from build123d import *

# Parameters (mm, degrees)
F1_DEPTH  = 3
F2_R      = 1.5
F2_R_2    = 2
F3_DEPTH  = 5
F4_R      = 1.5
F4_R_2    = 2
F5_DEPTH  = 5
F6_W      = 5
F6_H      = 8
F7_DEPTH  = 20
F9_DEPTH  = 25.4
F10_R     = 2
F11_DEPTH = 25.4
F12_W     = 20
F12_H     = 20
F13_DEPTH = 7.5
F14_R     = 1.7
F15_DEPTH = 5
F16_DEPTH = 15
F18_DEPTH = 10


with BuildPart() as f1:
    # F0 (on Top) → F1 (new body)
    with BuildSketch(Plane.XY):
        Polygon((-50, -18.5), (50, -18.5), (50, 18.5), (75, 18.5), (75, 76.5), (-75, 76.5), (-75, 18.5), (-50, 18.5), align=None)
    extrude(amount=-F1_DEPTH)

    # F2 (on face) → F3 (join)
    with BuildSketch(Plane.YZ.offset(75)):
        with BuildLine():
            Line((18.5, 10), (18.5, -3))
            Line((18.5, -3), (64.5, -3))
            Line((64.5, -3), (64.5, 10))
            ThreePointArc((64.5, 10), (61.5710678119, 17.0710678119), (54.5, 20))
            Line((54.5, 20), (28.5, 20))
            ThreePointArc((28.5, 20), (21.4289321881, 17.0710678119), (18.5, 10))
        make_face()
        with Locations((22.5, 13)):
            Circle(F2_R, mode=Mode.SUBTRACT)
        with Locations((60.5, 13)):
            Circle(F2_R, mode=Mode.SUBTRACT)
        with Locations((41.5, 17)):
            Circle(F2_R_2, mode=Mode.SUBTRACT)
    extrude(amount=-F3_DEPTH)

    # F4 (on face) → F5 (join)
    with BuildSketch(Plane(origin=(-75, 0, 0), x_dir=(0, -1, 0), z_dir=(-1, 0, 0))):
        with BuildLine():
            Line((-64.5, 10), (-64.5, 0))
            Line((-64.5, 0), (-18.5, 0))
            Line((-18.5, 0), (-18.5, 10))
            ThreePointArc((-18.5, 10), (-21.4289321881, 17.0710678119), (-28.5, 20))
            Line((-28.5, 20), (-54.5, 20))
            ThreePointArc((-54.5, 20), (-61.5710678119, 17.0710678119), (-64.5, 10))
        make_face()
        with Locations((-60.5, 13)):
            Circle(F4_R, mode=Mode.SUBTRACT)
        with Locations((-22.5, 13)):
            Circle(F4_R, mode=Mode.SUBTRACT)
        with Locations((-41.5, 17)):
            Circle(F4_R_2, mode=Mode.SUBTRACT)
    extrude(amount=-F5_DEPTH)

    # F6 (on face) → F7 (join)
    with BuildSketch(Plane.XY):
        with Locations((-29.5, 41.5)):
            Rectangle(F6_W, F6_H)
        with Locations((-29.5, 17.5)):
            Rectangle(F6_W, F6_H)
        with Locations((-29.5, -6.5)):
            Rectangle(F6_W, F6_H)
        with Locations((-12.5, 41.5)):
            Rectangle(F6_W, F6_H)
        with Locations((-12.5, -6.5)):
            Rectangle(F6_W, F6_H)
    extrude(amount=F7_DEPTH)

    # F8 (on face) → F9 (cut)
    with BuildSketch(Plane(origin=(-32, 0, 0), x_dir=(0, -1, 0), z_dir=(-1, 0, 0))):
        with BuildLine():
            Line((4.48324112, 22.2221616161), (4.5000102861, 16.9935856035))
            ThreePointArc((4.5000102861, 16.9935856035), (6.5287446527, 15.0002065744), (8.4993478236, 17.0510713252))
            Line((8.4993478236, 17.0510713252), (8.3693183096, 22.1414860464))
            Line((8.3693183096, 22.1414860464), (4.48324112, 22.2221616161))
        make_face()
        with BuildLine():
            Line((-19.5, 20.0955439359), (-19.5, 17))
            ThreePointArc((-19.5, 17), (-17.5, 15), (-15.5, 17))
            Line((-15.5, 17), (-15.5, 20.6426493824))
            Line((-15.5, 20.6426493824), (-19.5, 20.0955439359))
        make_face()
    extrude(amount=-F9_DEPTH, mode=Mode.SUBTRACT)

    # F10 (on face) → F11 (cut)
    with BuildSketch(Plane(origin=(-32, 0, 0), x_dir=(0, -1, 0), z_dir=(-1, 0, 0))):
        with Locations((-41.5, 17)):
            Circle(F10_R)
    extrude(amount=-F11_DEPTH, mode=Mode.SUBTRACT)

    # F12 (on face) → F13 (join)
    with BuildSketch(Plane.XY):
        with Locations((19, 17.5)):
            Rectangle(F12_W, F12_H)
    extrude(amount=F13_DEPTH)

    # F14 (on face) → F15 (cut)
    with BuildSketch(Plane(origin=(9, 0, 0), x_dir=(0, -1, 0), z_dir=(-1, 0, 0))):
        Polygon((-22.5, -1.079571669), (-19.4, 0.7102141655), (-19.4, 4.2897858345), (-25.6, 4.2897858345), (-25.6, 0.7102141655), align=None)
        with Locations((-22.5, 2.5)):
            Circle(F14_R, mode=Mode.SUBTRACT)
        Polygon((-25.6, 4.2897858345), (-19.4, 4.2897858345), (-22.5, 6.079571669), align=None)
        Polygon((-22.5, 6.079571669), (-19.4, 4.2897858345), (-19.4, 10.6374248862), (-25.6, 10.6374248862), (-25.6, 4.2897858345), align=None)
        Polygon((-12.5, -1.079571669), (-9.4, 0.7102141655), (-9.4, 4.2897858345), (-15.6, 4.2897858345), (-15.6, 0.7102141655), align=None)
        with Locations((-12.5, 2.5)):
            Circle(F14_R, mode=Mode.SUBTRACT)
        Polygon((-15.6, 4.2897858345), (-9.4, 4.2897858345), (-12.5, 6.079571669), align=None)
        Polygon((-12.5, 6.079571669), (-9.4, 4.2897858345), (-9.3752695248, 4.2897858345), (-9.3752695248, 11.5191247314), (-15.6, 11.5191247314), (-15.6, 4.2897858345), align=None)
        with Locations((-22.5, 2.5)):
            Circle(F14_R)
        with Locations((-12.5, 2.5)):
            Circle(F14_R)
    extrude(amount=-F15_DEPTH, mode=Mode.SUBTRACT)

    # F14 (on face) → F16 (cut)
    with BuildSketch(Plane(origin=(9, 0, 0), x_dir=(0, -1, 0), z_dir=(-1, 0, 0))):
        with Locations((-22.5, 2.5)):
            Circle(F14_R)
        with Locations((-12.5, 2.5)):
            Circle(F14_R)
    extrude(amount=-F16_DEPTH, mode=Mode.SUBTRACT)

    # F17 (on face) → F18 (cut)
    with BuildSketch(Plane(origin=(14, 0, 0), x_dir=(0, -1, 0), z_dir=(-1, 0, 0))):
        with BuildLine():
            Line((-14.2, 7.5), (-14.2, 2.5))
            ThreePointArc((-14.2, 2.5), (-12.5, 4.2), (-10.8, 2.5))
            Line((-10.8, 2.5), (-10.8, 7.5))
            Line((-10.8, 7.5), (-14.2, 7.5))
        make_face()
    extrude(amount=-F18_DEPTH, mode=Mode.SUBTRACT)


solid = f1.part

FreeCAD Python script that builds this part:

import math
import FreeCAD as App
import Part
import Sketcher
Q = App.Units.Quantity


def add_polygon(sketch, points):
    """Adds a closed chain of lines whose ends are joined by coincident constraints."""
    first, n = sketch.GeometryCount, len(points)
    for a, b in zip(points, points[1:] + points[:1]):
        sketch.addGeometry(Part.LineSegment(App.Vector(*a, 0), App.Vector(*b, 0)), False)
    for i in range(n):
        sketch.addConstraint(Sketcher.Constraint("Coincident", first + i, 2, first + (i + 1) % n, 1))

doc = App.newDocument("Part")
body = doc.addObject("PartDesign::Body", "Body")

# Sketch on XY plane
sketch1 = body.newObject("Sketcher::SketchObject", "Sketch")
sketch1.AttachmentSupport = (doc.getObject("XY_Plane"), [""])
sketch1.MapMode = "FlatFace"
add_polygon(sketch1, [(-50, -18), (50, -18), (50, 18), (75, 18), (75, 76), (-75, 76), (-75, 18), (-50, 18)])  # lines 0-7
sketch1.addConstraint(Sketcher.Constraint("Horizontal", 0))
sketch1.addConstraint(Sketcher.Constraint("Vertical", 1))
sketch1.addConstraint(Sketcher.Constraint("Horizontal", 2))
sketch1.addConstraint(Sketcher.Constraint("Vertical", 3))
sketch1.addConstraint(Sketcher.Constraint("Horizontal", 4))
sketch1.addConstraint(Sketcher.Constraint("Vertical", 5))
sketch1.addConstraint(Sketcher.Constraint("Horizontal", 6))
sketch1.addConstraint(Sketcher.Constraint("Vertical", 7))
sketch1.addConstraint(Sketcher.Constraint("Symmetric", 0, 2, 6, 2, -1, 1))
sketch1.addConstraint(Sketcher.Constraint("Symmetric", 2, 2, 5, 2, -2))
sketch1.addConstraint(Sketcher.Constraint("DistanceX", 0, 1, 0, 2, 100.0))
sketch1.addConstraint(Sketcher.Constraint("DistanceX", 2, 1, 2, 2, 25.0))
sketch1.addConstraint(Sketcher.Constraint("DistanceY", 1, 1, 1, 2, 37.0))
sketch1.addConstraint(Sketcher.Constraint("DistanceY", 3, 1, 3, 2, 58.0))
pad1 = body.newObject("PartDesign::Pad", "Pad")
pad1.Profile = sketch1
pad1.Length = 3
pad1.Reversed = True

# Sketch on YZ plane
sketch2 = body.newObject("Sketcher::SketchObject", "Sketch001")
sketch2.AttachmentSupport = (doc.getObject("YZ_Plane"), [""])
sketch2.MapMode = "FlatFace"
sketch2.AttachmentOffset = App.Placement(App.Vector(0, 0, 75), App.Rotation())
sketch2.addGeometry(Part.LineSegment(App.Vector(18.5, 10, 0), App.Vector(18.5, -3, 0)), False)
sketch2.addGeometry(Part.LineSegment(App.Vector(18.5, -3, 0), App.Vector(64.5, -3, 0)), False)
sketch2.addGeometry(Part.LineSegment(App.Vector(64.5, -3, 0), App.Vector(64.5, 10, 0)), False)
sketch2.addGeometry(Part.ArcOfCircle(Part.Circle(App.Vector(54.5, 10, 0), App.Vector(0, 0, 1), 10), math.radians(0), math.radians(90)), False)
sketch2.addGeometry(Part.LineSegment(App.Vector(54.5, 20, 0), App.Vector(28.5, 20, 0)), False)
sketch2.addGeometry(Part.ArcOfCircle(Part.Circle(App.Vector(28.5, 10, 0), App.Vector(0, 0, 1), 10), math.radians(90), math.radians(180)), False)
sketch2.addGeometry(Part.Circle(App.Vector(22.5, 13, 0), App.Vector(0, 0, 1), 1.5), False)
sketch2.addGeometry(Part.Circle(App.Vector(60.5, 13, 0), App.Vector(0, 0, 1), 1.5), False)
sketch2.addGeometry(Part.Circle(App.Vector(41.5, 17, 0), App.Vector(0, 0, 1), 2), False)
sketch2.addConstraint(Sketcher.Constraint("Coincident", 0, 2, 1, 1))
sketch2.addConstraint(Sketcher.Constraint("Coincident", 1, 2, 2, 1))
sketch2.addConstraint(Sketcher.Constraint("Tangent", 2, 2, 3, 1))
sketch2.addConstraint(Sketcher.Constraint("Tangent", 3, 2, 4, 1))
sketch2.addConstraint(Sketcher.Constraint("Tangent", 4, 2, 5, 1))
sketch2.addConstraint(Sketcher.Constraint("Tangent", 5, 2, 0, 1))
sketch2.addConstraint(Sketcher.Constraint("Vertical", 0))
sketch2.addConstraint(Sketcher.Constraint("Horizontal", 1))
sketch2.addConstraint(Sketcher.Constraint("Vertical", 2))
sketch2.addConstraint(Sketcher.Constraint("Horizontal", 4))
sketch2.addConstraint(Sketcher.Constraint("Equal", 3, 5))
sketch2.addConstraint(Sketcher.Constraint("Equal", 6, 7))
sketch2.addConstraint(Sketcher.Constraint("Horizontal", 6, 3, 7, 3))
sketch2.addConstraint(Sketcher.Constraint("Diameter", 6, 3.0))
sketch2.addConstraint(Sketcher.Constraint("Diameter", 8, 4.0))
sketch2.addConstraint(Sketcher.Constraint("Radius", 3, 10.0))
sketch2.addConstraint(Sketcher.Constraint("DistanceX", 1, 1, 1, 2, 46.0))
sketch2.addConstraint(Sketcher.Constraint("DistanceY", 0, 2, 0, 1, 13.0))
sketch2.addConstraint(Sketcher.Constraint("DistanceY", -1, 1, 3, 3, 10.0))
sketch2.addConstraint(Sketcher.Constraint("DistanceY", -1, 1, 6, 3, 13.0))
sketch2.addConstraint(Sketcher.Constraint("DistanceY", -1, 1, 8, 3, 17.0))
sketch2.addConstraint(Sketcher.Constraint("DistanceX", 6, 3, 5, 3, 6.0))
sketch2.addConstraint(Sketcher.Constraint("DistanceX", 3, 3, 7, 3, 6.0))
sketch2.addConstraint(Sketcher.Constraint("DistanceX", 8, 3, 3, 3, 13.0))
sketch2.addConstraint(Sketcher.Constraint("DistanceX", -1, 1, 3, 3, 54.5))
pad2 = body.newObject("PartDesign::Pad", "Pad001")
pad2.Profile = sketch2
pad2.Length = 5
pad2.Reversed = True

# Sketch on YZ plane
sketch3 = body.newObject("Sketcher::SketchObject", "Sketch002")
sketch3.AttachmentSupport = (doc.getObject("YZ_Plane"), [""])
sketch3.MapMode = "FlatFace"
sketch3.AttachmentOffset = App.Placement(App.Vector(0, 0, -75), App.Rotation())
sketch3.addGeometry(Part.LineSegment(App.Vector(64.5, 10, 0), App.Vector(64.5, 0, 0)), False)
sketch3.addGeometry(Part.LineSegment(App.Vector(64.5, 0, 0), App.Vector(18.5, 0, 0)), False)
sketch3.addGeometry(Part.LineSegment(App.Vector(18.5, 0, 0), App.Vector(18.5, 10, 0)), False)
sketch3.addGeometry(Part.ArcOfCircle(Part.Circle(App.Vector(28.5, 10, 0), App.Vector(0, 0, 1), 10), math.radians(90), math.radians(180)), False)
sketch3.addGeometry(Part.LineSegment(App.Vector(28.5, 20, 0), App.Vector(54.5, 20, 0)), False)
sketch3.addGeometry(Part.ArcOfCircle(Part.Circle(App.Vector(54.5, 10, 0), App.Vector(0, 0, 1), 10), math.radians(0), math.radians(90)), False)
sketch3.addGeometry(Part.Circle(App.Vector(60.5, 13, 0), App.Vector(0, 0, 1), 1.5), False)
sketch3.addGeometry(Part.Circle(App.Vector(22.5, 13, 0), App.Vector(0, 0, 1), 1.5), False)
sketch3.addGeometry(Part.Circle(App.Vector(41.5, 17, 0), App.Vector(0, 0, 1), 2), False)
sketch3.addConstraint(Sketcher.Constraint("Coincident", 0, 2, 1, 1))
sketch3.addConstraint(Sketcher.Constraint("Coincident", 1, 2, 2, 1))
sketch3.addConstraint(Sketcher.Constraint("Tangent", 2, 2, 3, 2))
sketch3.addConstraint(Sketcher.Constraint("Tangent", 3, 1, 4, 1))
sketch3.addConstraint(Sketcher.Constraint("Tangent", 4, 2, 5, 2))
sketch3.addConstraint(Sketcher.Constraint("Tangent", 5, 1, 0, 1))
sketch3.addConstraint(Sketcher.Constraint("Vertical", 0))
sketch3.addConstraint(Sketcher.Constraint("Horizontal", 1))
sketch3.addConstraint(Sketcher.Constraint("Vertical", 2))
sketch3.addConstraint(Sketcher.Constraint("Horizontal", 4))
sketch3.addConstraint(Sketcher.Constraint("Equal", 3, 5))
sketch3.addConstraint(Sketcher.Constraint("Equal", 6, 7))
sketch3.addConstraint(Sketcher.Constraint("PointOnObject", 0, 2, -1))
sketch3.addConstraint(Sketcher.Constraint("Horizontal", 6, 3, 7, 3))
sketch3.addConstraint(Sketcher.Constraint("Diameter", 6, 3.0))
sketch3.addConstraint(Sketcher.Constraint("Diameter", 8, 4.0))
sketch3.addConstraint(Sketcher.Constraint("Radius", 3, 10.0))
sketch3.addConstraint(Sketcher.Constraint("DistanceX", 1, 2, 1, 1, 46.0))
sketch3.addConstraint(Sketcher.Constraint("DistanceY", 0, 2, 0, 1, 10.0))
sketch3.addConstraint(Sketcher.Constraint("DistanceY", -1, 1, 6, 3, 13.0))
sketch3.addConstraint(Sketcher.Constraint("DistanceY", -1, 1, 8, 3, 17.0))
sketch3.addConstraint(Sketcher.Constraint("DistanceX", 5, 3, 6, 3, 6.0))
sketch3.addConstraint(Sketcher.Constraint("DistanceX", 7, 3, 3, 3, 6.0))
sketch3.addConstraint(Sketcher.Constraint("DistanceX", 3, 3, 8, 3, 13.0))
sketch3.addConstraint(Sketcher.Constraint("DistanceX", -1, 1, 3, 3, 28.5))
pad3 = body.newObject("PartDesign::Pad", "Pad002")
pad3.Profile = sketch3
pad3.Length = 5

# Sketch on XY plane
sketch4 = body.newObject("Sketcher::SketchObject", "Sketch003")
sketch4.AttachmentSupport = (doc.getObject("XY_Plane"), [""])
sketch4.MapMode = "FlatFace"
add_polygon(sketch4, [(-32, 46), (-32, 38), (-27, 38), (-27, 46)])  # lines 0-3
add_polygon(sketch4, [(-32, 22), (-32, 14), (-27, 14), (-27, 22)])  # lines 4-7
add_polygon(sketch4, [(-32, -2), (-32, -10), (-27, -10), (-27, -2)])  # lines 8-11
add_polygon(sketch4, [(-15, 46), (-15, 38), (-10, 38), (-10, 46)])  # lines 12-15
add_polygon(sketch4, [(-15, -2), (-15, -10), (-10, -10), (-10, -2)])  # lines 16-19
sketch4.addConstraint(Sketcher.Constraint("Vertical", 0))
sketch4.addConstraint(Sketcher.Constraint("Horizontal", 1))
sketch4.addConstraint(Sketcher.Constraint("Vertical", 2))
sketch4.addConstraint(Sketcher.Constraint("Horizontal", 3))
sketch4.addConstraint(Sketcher.Constraint("Vertical", 4))
sketch4.addConstraint(Sketcher.Constraint("Horizontal", 5))
sketch4.addConstraint(Sketcher.Constraint("Vertical", 6))
sketch4.addConstraint(Sketcher.Constraint("Horizontal", 7))
sketch4.addConstraint(Sketcher.Constraint("Vertical", 8))
sketch4.addConstraint(Sketcher.Constraint("Horizontal", 9))
sketch4.addConstraint(Sketcher.Constraint("Vertical", 10))
sketch4.addConstraint(Sketcher.Constraint("Horizontal", 11))
sketch4.addConstraint(Sketcher.Constraint("Vertical", 12))
sketch4.addConstraint(Sketcher.Constraint("Horizontal", 13))
sketch4.addConstraint(Sketcher.Constraint("Vertical", 14))
sketch4.addConstraint(Sketcher.Constraint("Horizontal", 15))
sketch4.addConstraint(Sketcher.Constraint("Vertical", 16))
sketch4.addConstraint(Sketcher.Constraint("Horizontal", 17))
sketch4.addConstraint(Sketcher.Constraint("Vertical", 18))
sketch4.addConstraint(Sketcher.Constraint("Horizontal", 19))
sketch4.addConstraint(Sketcher.Constraint("Horizontal", 1, 2, 12, 2))
sketch4.addConstraint(Sketcher.Constraint("Horizontal", 3, 2, 14, 2))
sketch4.addConstraint(Sketcher.Constraint("Horizontal", 9, 2, 16, 2))
sketch4.addConstraint(Sketcher.Constraint("Horizontal", 11, 2, 18, 2))
sketch4.addConstraint(Sketcher.Constraint("Vertical", 3, 2, 4, 2))
sketch4.addConstraint(Sketcher.Constraint("Vertical", 2, 2, 5, 2))
sketch4.addConstraint(Sketcher.Constraint("Vertical", 7, 2, 8, 2))
sketch4.addConstraint(Sketcher.Constraint("Vertical", 6, 2, 9, 2))
sketch4.addConstraint(Sketcher.Constraint("Vertical", 15, 2, 16, 2))
sketch4.addConstraint(Sketcher.Constraint("Vertical", 14, 2, 17, 2))
sketch4.addConstraint(Sketcher.Constraint("Equal", 11, 13))
sketch4.addConstraint(Sketcher.Constraint("Equal", 2, 4))
sketch4.addConstraint(Sketcher.Constraint("Equal", 6, 8))
sketch4.addConstraint(Sketcher.Constraint("DistanceX", 1, 1, 1, 2, 5.0))
sketch4.addConstraint(Sketcher.Constraint("DistanceY", 0, 2, 0, 1, 8.0))
sketch4.addConstraint(Sketcher.Constraint("DistanceX", 0, 2, -1, 1, 32.0))
sketch4.addConstraint(Sketcher.Constraint("DistanceX", 12, 2, -1, 1, 15.0))
sketch4.addConstraint(Sketcher.Constraint("DistanceY", 4, 2, 0, 2, 24.0))
sketch4.addConstraint(Sketcher.Constraint("DistanceY", 8, 2, 4, 2, 24.0))
sketch4.addConstraint(Sketcher.Constraint("DistanceY", -1, 1, 0, 2, 37.5))
pad4 = body.newObject("PartDesign::Pad", "Pad003")
pad4.Profile = sketch4
pad4.Length = 20

# Sketch on YZ plane
sketch5 = body.newObject("Sketcher::SketchObject", "Sketch004")
sketch5.AttachmentSupport = (doc.getObject("YZ_Plane"), [""])
sketch5.MapMode = "FlatFace"
sketch5.AttachmentOffset = App.Placement(App.Vector(0, 0, -32), App.Rotation())
sketch5.addGeometry(Part.LineSegment(App.Vector(-4.483241, 22.222162, 0), App.Vector(-4.50001, 16.993586, 0)), False)
sketch5.addGeometry(Part.ArcOfCircle(Part.Circle(App.Vector(-6.5, 17, 0), App.Vector(0, 0, 1), 2), math.radians(178.536755), math.radians(359.816241)), False)
sketch5.addGeometry(Part.LineSegment(App.Vector(-8.499348, 17.051071, 0), App.Vector(-8.369318, 22.141486, 0)), False)
sketch5.addGeometry(Part.LineSegment(App.Vector(-8.369318, 22.141486, 0), App.Vector(-4.483241, 22.222162, 0)), False)
sketch5.addGeometry(Part.LineSegment(App.Vector(19.5, 20.095544, 0), App.Vector(19.5, 17, 0)), False)
sketch5.addGeometry(Part.ArcOfCircle(Part.Circle(App.Vector(17.5, 17, 0), App.Vector(0, 0, 1), 2), math.radians(180), math.radians(360)), False)
sketch5.addGeometry(Part.LineSegment(App.Vector(15.5, 17, 0), App.Vector(15.5, 20.642649, 0)), False)
sketch5.addGeometry(Part.LineSegment(App.Vector(15.5, 20.642649, 0), App.Vector(19.5, 20.095544, 0)), False)
sketch5.addConstraint(Sketcher.Constraint("Coincident", 0, 2, 1, 2))
sketch5.addConstraint(Sketcher.Constraint("Coincident", 1, 1, 2, 1))
sketch5.addConstraint(Sketcher.Constraint("Coincident", 2, 2, 3, 1))
sketch5.addConstraint(Sketcher.Constraint("Coincident", 3, 2, 0, 1))
sketch5.addConstraint(Sketcher.Constraint("Coincident", 4, 2, 5, 2))
sketch5.addConstraint(Sketcher.Constraint("Coincident", 5, 1, 6, 1))
sketch5.addConstraint(Sketcher.Constraint("Coincident", 6, 2, 7, 1))
sketch5.addConstraint(Sketcher.Constraint("Coincident", 7, 2, 4, 1))
sketch5.addConstraint(Sketcher.Constraint("Vertical", 4))
sketch5.addConstraint(Sketcher.Constraint("Vertical", 6))
sketch5.addConstraint(Sketcher.Constraint("Radius", 1, 2.0))
sketch5.addConstraint(Sketcher.Constraint("Radius", 5, 2.0))
sketch5.addConstraint(Sketcher.Constraint("DistanceY", -1, 1, 1, 3, 17.0))
sketch5.addConstraint(Sketcher.Constraint("DistanceY", -1, 1, 5, 3, 17.0))
sketch5.addConstraint(Sketcher.Constraint("DistanceY", -1, 1, 4, 2, 17.0))
sketch5.addConstraint(Sketcher.Constraint("DistanceY", -1, 1, 5, 1, 17.0))
sketch5.addConstraint(Sketcher.Constraint("DistanceX", 1, 3, 5, 3, 24.0))
sketch5.addConstraint(Sketcher.Constraint("DistanceX", 1, 3, -1, 1, 6.5))
sketch5.addConstraint(Sketcher.Constraint("DistanceY", 6, 1, 6, 2, 3.642649))
sketch5.addConstraint(Sketcher.Constraint("DistanceY", 0, 2, 2, 2, 5.1479))
sketch5.addConstraint(Sketcher.Constraint("DistanceY", 4, 2, 4, 1, 3.095544))
sketch5.addConstraint(Sketcher.Constraint("DistanceY", -1, 1, 1, 1, 17.051071))
sketch5.addConstraint(Sketcher.Constraint("DistanceX", 2, 2, -1, 1, 8.369318))
sketch5.addConstraint(Sketcher.Constraint("DistanceX", 3, 2, -1, 1, 4.483241))
sketch5.addConstraint(Sketcher.Constraint("DistanceY", -1, 1, 3, 2, 22.222162))
sketch5.addConstraint(Sketcher.Constraint("Distance", 0, 5.228603))
pocket1 = body.newObject("PartDesign::Pocket", "Pocket")
pocket1.Profile = sketch5
pocket1.Length = 25.4
pocket1.Reversed = True

# Sketch on YZ plane
sketch6 = body.newObject("Sketcher::SketchObject", "Sketch005")
sketch6.AttachmentSupport = (doc.getObject("YZ_Plane"), [""])
sketch6.MapMode = "FlatFace"
sketch6.AttachmentOffset = App.Placement(App.Vector(0, 0, -32), App.Rotation())
sketch6.addGeometry(Part.Circle(App.Vector(41.5, 17, 0), App.Vector(0, 0, 1), 2), False)
sketch6.addConstraint(Sketcher.Constraint("Diameter", 0, 4.0))
sketch6.addConstraint(Sketcher.Constraint("DistanceY", -1, 1, 0, 3, 17.0))
sketch6.addConstraint(Sketcher.Constraint("DistanceX", -1, 1, 0, 3, 41.5))
pocket2 = body.newObject("PartDesign::Pocket", "Pocket001")
pocket2.Profile = sketch6
pocket2.Length = 25.4
pocket2.Reversed = True

# Sketch on XY plane
sketch7 = body.newObject("Sketcher::SketchObject", "Sketch006")
sketch7.AttachmentSupport = (doc.getObject("XY_Plane"), [""])
sketch7.MapMode = "FlatFace"
add_polygon(sketch7, [(9, 28), (9, 8), (29, 8), (29, 28)])  # lines 0-3
sketch7.addConstraint(Sketcher.Constraint("Vertical", 0))
sketch7.addConstraint(Sketcher.Constraint("Horizontal", 1))
sketch7.addConstraint(Sketcher.Constraint("Vertical", 2))
sketch7.addConstraint(Sketcher.Constraint("Horizontal", 3))
sketch7.addConstraint(Sketcher.Constraint("Equal", 3, 0))
sketch7.addConstraint(Sketcher.Constraint("DistanceX", 1, 1, 1, 2, 20.0))
sketch7.addConstraint(Sketcher.Constraint("DistanceX", -1, 1, 0, 2, 9.0))
sketch7.addConstraint(Sketcher.Constraint("DistanceY", -1, 1, 0, 2, 7.5))
pad5 = body.newObject("PartDesign::Pad", "Pad004")
pad5.Profile = sketch7
pad5.Length = 7.5

# Sketch on YZ plane
sketch8 = body.newObject("Sketcher::SketchObject", "Sketch007")
sketch8.AttachmentSupport = (doc.getObject("YZ_Plane"), [""])
sketch8.MapMode = "FlatFace"
sketch8.AttachmentOffset = App.Placement(App.Vector(0, 0, 9), App.Rotation())
add_polygon(sketch8, [(22.5, -1.08), (19.4, 0.71), (19.4, 10.637), (25.6, 10.637), (25.6, 0.71)])  # lines 0-4
add_polygon(sketch8, [(12.5, -1.08), (9.4, 0.71), (9.4, 4.29), (9.375, 4.29), (9.375, 11.519), (15.6, 11.519), (15.6, 0.71)])  # lines 5-11
sketch8.addConstraint(Sketcher.Constraint("Vertical", 1))
sketch8.addConstraint(Sketcher.Constraint("Horizontal", 2))
sketch8.addConstraint(Sketcher.Constraint("Vertical", 3))
sketch8.addConstraint(Sketcher.Constraint("Vertical", 6))
sketch8.addConstraint(Sketcher.Constraint("Horizontal", 7))
sketch8.addConstraint(Sketcher.Constraint("Vertical", 8))
sketch8.addConstraint(Sketcher.Constraint("Horizontal", 9))
sketch8.addConstraint(Sketcher.Constraint("Vertical", 10))
sketch8.addConstraint(Sketcher.Constraint("Parallel", 0, 5))
sketch8.addConstraint(Sketcher.Constraint("Parallel", 4, 11))
sketch8.addConstraint(Sketcher.Constraint("Horizontal", 0, 2, 3, 2))
sketch8.addConstraint(Sketcher.Constraint("Horizontal", 3, 2, 5, 2))
sketch8.addConstraint(Sketcher.Constraint("Horizontal", 5, 2, 10, 2))
sketch8.addConstraint(Sketcher.Constraint("Horizontal", 4, 2, 11, 2))
sketch8.addConstraint(Sketcher.Constraint("Equal", 0, 4))
sketch8.addConstraint(Sketcher.Constraint("Angle", 0, Q("150 deg")))
sketch8.addConstraint(Sketcher.Constraint("DistanceX", 2, 1, 2, 2, 6.2))
sketch8.addConstraint(Sketcher.Constraint("DistanceX", 5, 2, 0, 2, 10.0))
sketch8.addConstraint(Sketcher.Constraint("DistanceX", -1, 1, 0, 2, 19.4))
sketch8.addConstraint(Sketcher.Constraint("DistanceX", 7, 2, 7, 1, 0.02473))
sketch8.addConstraint(Sketcher.Constraint("DistanceY", 1, 1, 1, 2, 9.927211))
sketch8.addConstraint(Sketcher.Constraint("DistanceY", 6, 1, 6, 2, 3.579572))
sketch8.addConstraint(Sketcher.Constraint("DistanceY", 8, 1, 8, 2, 7.229339))
sketch8.addConstraint(Sketcher.Constraint("DistanceY", 4, 2, -1, 1, 1.079572))
pocket3 = body.newObject("PartDesign::Pocket", "Pocket002")
pocket3.Profile = sketch8
pocket3.Length = 5
pocket3.Reversed = True

# Sketch on YZ plane
sketch9 = body.newObject("Sketcher::SketchObject", "Sketch008")
sketch9.AttachmentSupport = (doc.getObject("YZ_Plane"), [""])
sketch9.MapMode = "FlatFace"
sketch9.AttachmentOffset = App.Placement(App.Vector(0, 0, 9), App.Rotation())
sketch9.addGeometry(Part.Circle(App.Vector(22.5, 2.5, 0), App.Vector(0, 0, 1), 1.7), False)
sketch9.addGeometry(Part.Circle(App.Vector(12.5, 2.5, 0), App.Vector(0, 0, 1), 1.7), False)
sketch9.addConstraint(Sketcher.Constraint("Equal", 0, 1))
sketch9.addConstraint(Sketcher.Constraint("Horizontal", 0, 3, 1, 3))
sketch9.addConstraint(Sketcher.Constraint("Diameter", 0, 3.4))
sketch9.addConstraint(Sketcher.Constraint("DistanceX", 1, 3, 0, 3, 10.0))
sketch9.addConstraint(Sketcher.Constraint("DistanceX", -1, 1, 0, 3, 22.5))
sketch9.addConstraint(Sketcher.Constraint("DistanceY", -1, 1, 0, 3, 2.5))
pocket4 = body.newObject("PartDesign::Pocket", "Pocket003")
pocket4.Profile = sketch9
pocket4.Length = 15
pocket4.Reversed = True

# Sketch on YZ plane
sketch10 = body.newObject("Sketcher::SketchObject", "Sketch009")
sketch10.AttachmentSupport = (doc.getObject("YZ_Plane"), [""])
sketch10.MapMode = "FlatFace"
sketch10.AttachmentOffset = App.Placement(App.Vector(0, 0, 14), App.Rotation())
sketch10.addGeometry(Part.LineSegment(App.Vector(14.2, 7.5, 0), App.Vector(14.2, 2.5, 0)), False)
sketch10.addGeometry(Part.ArcOfCircle(Part.Circle(App.Vector(12.5, 2.5, 0), App.Vector(0, 0, 1), 1.7), math.radians(0), math.radians(180)), False)
sketch10.addGeometry(Part.LineSegment(App.Vector(10.8, 2.5, 0), App.Vector(10.8, 7.5, 0)), False)
sketch10.addGeometry(Part.LineSegment(App.Vector(10.8, 7.5, 0), App.Vector(14.2, 7.5, 0)), False)
sketch10.addConstraint(Sketcher.Constraint("Tangent", 0, 2, 1, 1))
sketch10.addConstraint(Sketcher.Constraint("Tangent", 1, 2, 2, 1))
sketch10.addConstraint(Sketcher.Constraint("Coincident", 2, 2, 3, 1))
sketch10.addConstraint(Sketcher.Constraint("Coincident", 3, 2, 0, 1))
sketch10.addConstraint(Sketcher.Constraint("Vertical", 0))
sketch10.addConstraint(Sketcher.Constraint("Vertical", 2))
sketch10.addConstraint(Sketcher.Constraint("Horizontal", 3))
sketch10.addConstraint(Sketcher.Constraint("Radius", 1, 1.7))
sketch10.addConstraint(Sketcher.Constraint("DistanceY", 0, 2, 0, 1, 5.0))
sketch10.addConstraint(Sketcher.Constraint("DistanceX", -1, 1, 1, 3, 12.5))
sketch10.addConstraint(Sketcher.Constraint("DistanceY", -1, 1, 1, 3, 2.5))
pocket5 = body.newObject("PartDesign::Pocket", "Pocket004")
pocket5.Profile = sketch10
pocket5.Length = 10
pocket5.Reversed = True

doc.recompute()
